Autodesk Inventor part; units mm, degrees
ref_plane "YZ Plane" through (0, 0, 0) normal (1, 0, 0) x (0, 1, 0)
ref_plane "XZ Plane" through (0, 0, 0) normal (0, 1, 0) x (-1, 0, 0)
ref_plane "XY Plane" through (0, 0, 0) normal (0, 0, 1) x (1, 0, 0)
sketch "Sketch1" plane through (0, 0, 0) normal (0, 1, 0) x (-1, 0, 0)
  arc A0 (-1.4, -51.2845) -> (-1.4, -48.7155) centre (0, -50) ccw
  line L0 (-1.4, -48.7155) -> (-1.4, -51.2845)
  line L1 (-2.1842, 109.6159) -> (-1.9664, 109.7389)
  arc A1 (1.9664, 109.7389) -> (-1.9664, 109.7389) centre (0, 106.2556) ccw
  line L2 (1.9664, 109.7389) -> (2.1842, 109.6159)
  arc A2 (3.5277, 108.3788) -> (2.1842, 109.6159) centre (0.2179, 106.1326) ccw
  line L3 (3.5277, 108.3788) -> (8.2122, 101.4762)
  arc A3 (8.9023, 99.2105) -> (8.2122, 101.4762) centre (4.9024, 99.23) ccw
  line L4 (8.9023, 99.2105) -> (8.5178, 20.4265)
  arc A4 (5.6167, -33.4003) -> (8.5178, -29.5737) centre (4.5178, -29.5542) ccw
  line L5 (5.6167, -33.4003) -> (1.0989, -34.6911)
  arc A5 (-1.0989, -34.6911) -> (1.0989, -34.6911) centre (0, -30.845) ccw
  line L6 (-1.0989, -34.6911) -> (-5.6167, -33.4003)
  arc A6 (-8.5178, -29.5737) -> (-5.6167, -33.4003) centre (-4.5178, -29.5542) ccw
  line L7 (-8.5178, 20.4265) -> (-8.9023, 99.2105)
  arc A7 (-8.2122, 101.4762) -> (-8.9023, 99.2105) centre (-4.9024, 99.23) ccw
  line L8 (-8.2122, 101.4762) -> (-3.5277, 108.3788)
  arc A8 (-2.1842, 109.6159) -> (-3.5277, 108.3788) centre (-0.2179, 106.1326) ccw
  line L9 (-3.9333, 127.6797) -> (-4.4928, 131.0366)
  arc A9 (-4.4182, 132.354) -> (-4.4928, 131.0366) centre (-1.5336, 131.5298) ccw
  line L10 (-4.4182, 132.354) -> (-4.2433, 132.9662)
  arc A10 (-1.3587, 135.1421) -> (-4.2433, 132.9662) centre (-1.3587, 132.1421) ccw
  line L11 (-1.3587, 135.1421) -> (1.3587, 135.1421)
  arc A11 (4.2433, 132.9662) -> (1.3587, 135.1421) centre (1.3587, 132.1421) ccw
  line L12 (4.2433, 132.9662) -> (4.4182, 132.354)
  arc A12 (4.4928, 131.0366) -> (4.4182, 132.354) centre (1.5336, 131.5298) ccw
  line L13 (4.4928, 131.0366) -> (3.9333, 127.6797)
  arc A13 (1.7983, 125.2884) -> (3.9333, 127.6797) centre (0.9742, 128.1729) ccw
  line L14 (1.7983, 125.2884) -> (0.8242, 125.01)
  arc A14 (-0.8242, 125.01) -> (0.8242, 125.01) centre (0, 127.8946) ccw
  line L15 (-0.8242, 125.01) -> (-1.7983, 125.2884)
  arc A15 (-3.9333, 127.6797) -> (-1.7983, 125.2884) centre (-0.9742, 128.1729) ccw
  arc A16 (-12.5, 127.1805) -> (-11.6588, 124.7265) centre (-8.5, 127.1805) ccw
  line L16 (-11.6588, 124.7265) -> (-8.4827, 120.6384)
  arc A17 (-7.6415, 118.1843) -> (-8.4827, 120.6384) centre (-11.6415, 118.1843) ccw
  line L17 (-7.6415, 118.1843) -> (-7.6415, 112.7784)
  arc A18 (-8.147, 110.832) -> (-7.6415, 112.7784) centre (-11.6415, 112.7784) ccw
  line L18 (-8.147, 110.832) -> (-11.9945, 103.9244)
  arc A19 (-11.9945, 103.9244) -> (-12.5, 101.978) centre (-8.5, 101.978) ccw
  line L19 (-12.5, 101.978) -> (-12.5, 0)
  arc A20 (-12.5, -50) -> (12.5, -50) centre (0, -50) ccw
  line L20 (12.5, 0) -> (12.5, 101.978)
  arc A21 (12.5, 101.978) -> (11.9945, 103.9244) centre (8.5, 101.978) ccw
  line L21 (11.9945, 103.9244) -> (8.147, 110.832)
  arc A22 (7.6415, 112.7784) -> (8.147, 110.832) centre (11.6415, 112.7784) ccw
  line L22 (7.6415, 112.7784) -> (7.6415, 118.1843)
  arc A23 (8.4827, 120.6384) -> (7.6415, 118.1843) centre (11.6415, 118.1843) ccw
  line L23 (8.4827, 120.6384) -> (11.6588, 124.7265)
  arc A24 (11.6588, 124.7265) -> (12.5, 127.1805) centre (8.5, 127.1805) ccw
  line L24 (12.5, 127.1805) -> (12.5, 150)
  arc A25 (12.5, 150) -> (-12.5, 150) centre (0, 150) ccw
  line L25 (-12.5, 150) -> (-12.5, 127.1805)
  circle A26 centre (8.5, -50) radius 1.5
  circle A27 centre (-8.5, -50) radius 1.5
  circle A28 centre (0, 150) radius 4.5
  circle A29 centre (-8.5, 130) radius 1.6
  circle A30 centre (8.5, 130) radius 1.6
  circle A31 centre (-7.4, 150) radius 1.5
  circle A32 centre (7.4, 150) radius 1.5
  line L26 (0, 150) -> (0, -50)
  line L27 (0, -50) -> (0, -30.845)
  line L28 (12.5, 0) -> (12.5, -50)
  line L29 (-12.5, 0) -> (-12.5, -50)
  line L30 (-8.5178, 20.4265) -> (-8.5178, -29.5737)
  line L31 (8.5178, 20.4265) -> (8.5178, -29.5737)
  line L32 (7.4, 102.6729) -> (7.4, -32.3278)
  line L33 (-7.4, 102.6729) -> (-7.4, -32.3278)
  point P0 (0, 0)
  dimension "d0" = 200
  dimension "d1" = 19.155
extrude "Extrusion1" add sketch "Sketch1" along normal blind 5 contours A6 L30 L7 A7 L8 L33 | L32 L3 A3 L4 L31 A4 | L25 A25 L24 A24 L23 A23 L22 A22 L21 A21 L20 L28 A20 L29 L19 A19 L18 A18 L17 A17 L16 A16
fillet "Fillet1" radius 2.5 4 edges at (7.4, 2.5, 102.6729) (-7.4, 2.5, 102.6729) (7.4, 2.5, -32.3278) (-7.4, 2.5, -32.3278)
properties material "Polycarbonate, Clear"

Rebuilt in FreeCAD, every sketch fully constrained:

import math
import FreeCAD as App
import Part
import Sketcher


def edges_at(feature, points):
    """Names of the edges that pass closest to the given points."""
    edges = feature.Shape.Edges
    near = lambda p: min(range(len(edges)), key=lambda i: edges[i].distToShape(Part.Vertex(*p))[0])
    return sorted({f"Edge{near(p) + 1}" for p in points})

doc = App.newDocument("Part")
body = doc.addObject("PartDesign::Body", "Body")

# Sketch on XZ plane
sketch1 = body.newObject("Sketcher::SketchObject", "Sketch")
sketch1.AttachmentSupport = (doc.getObject("XZ_Plane"), [""])
sketch1.MapMode = "FlatFace"
sketch1.addGeometry([
    Part.LineSegment(App.Vector(12.5, 150, 0), App.Vector(12.5, 127.1805, 0)),  # 0
    Part.ArcOfCircle(Part.Circle(App.Vector(8.5, 127.1805, 0), App.Vector(0, 0, 1), 4), math.radians(-37.842823), math.radians(0)),  # 1
    Part.LineSegment(App.Vector(11.6588, 124.7265, 0), App.Vector(8.4827, 120.6384, 0)),  # 2
    Part.ArcOfCircle(Part.Circle(App.Vector(11.6415, 118.1843, 0), App.Vector(0, 0, 1), 4), math.radians(142.156046), math.radians(180)),  # 3
    Part.LineSegment(App.Vector(7.6415, 118.1843, 0), App.Vector(7.6415, 112.7784, 0)),  # 4
    Part.ArcOfCircle(Part.Circle(App.Vector(11.6415, 112.7784, 0), App.Vector(0, 0, 1), 4), math.radians(180), math.radians(209.11735)),  # 5
    Part.LineSegment(App.Vector(8.147, 110.832, 0), App.Vector(11.9945, 103.9244, 0)),  # 6
    Part.ArcOfCircle(Part.Circle(App.Vector(8.5, 101.978, 0), App.Vector(0, 0, 1), 4), math.radians(0), math.radians(29.11735)),  # 7
    Part.LineSegment(App.Vector(12.5, 101.978, 0), App.Vector(12.5, -50, 0)),  # 8
    Part.ArcOfCircle(Part.Circle(App.Vector(0, -50, 0), App.Vector(0, 0, 1), 12.5), math.radians(180), math.radians(360)),  # 9
    Part.LineSegment(App.Vector(-12.5, -50, 0), App.Vector(-12.5, 101.978, 0)),  # 10
    Part.ArcOfCircle(Part.Circle(App.Vector(-8.5, 101.978, 0), App.Vector(0, 0, 1), 4), math.radians(150.88265), math.radians(180)),  # 11
    Part.LineSegment(App.Vector(-11.9945, 103.9244, 0), App.Vector(-8.147, 110.832, 0)),  # 12
    Part.ArcOfCircle(Part.Circle(App.Vector(-11.6415, 112.7784, 0), App.Vector(0, 0, 1), 4), math.radians(-29.11735), math.radians(0)),  # 13
    Part.LineSegment(App.Vector(-7.6415, 112.7784, 0), App.Vector(-7.6415, 118.1843, 0)),  # 14
    Part.ArcOfCircle(Part.Circle(App.Vector(-11.6415, 118.1843, 0), App.Vector(0, 0, 1), 4.000078), math.radians(0), math.radians(37.843954)),  # 15
    Part.LineSegment(App.Vector(-8.4827, 120.6384, 0), App.Vector(-11.6588, 124.7265, 0)),  # 16
    Part.ArcOfCircle(Part.Circle(App.Vector(-8.5, 127.1805, 0), App.Vector(0, 0, 1), 4.000017), math.radians(180), math.radians(217.842823)),  # 17
    Part.LineSegment(App.Vector(-12.5, 127.1805, 0), App.Vector(-12.5, 150, 0)),  # 18
    Part.ArcOfCircle(Part.Circle(App.Vector(0, 150, 0), App.Vector(0, 0, 1), 12.5), math.radians(0), math.radians(180)),  # 19
    Part.LineSegment(App.Vector(7.4, -32.3278, 0), App.Vector(7.4, 102.6729, 0)),  # 20
    Part.LineSegment(App.Vector(7.400035, 102.672924, 0), App.Vector(3.5277, 108.3788, 0)),  # 21
    Part.ArcOfCircle(Part.Circle(App.Vector(0.217233, 106.131683, 0), App.Vector(0, 0, 1), 4.001091), math.radians(34.168327), math.radians(60.553691)),  # 22
    Part.LineSegment(App.Vector(2.1842, 109.6159, 0), App.Vector(1.9664, 109.7389, 0)),  # 23
    Part.ArcOfCircle(Part.Circle(App.Vector(0, 106.2556, 0), App.Vector(0, 0, 1), 4.000013), math.radians(60.55431), math.radians(90)),  # 24
    Part.ArcOfCircle(Part.Circle(App.Vector(0, 106.2556, 0), App.Vector(0, 0, 1), 4.000013), math.radians(90), math.radians(119.44569)),  # 25
    Part.LineSegment(App.Vector(-1.9664, 109.7389, 0), App.Vector(-2.1842, 109.6159, 0)),  # 26
    Part.ArcOfCircle(Part.Circle(App.Vector(-0.218759, 106.13334, 0), App.Vector(0, 0, 1), 3.998898), math.radians(119.438943), math.radians(145.839039)),  # 27
    Part.LineSegment(App.Vector(-3.5277, 108.3788, 0), App.Vector(-7.400035, 102.672924, 0)),  # 28
    Part.LineSegment(App.Vector(-7.4, 102.6729, 0), App.Vector(-7.4, -32.3278, 0)),  # 29
    Part.ArcOfCircle(Part.Circle(App.Vector(-4.5178, -29.5542, 0), App.Vector(0, 0, 1), 4.000008), math.radians(-136.100031), math.radians(-105.945593)),  # 30
    Part.LineSegment(App.Vector(-5.6167, -33.4003, 0), App.Vector(-1.0989, -34.6911, 0)),  # 31
    Part.ArcOfCircle(Part.Circle(App.Vector(0, -30.845, 0), App.Vector(0, 0, 1), 4.000008), math.radians(-105.945593), math.radians(-90)),  # 32
    Part.ArcOfCircle(Part.Circle(App.Vector(0, -30.845, 0), App.Vector(0, 0, 1), 4.000008), math.radians(-90), math.radians(-74.054407)),  # 33
    Part.LineSegment(App.Vector(1.0989, -34.6911, 0), App.Vector(5.6167, -33.4003, 0)),  # 34
    Part.ArcOfCircle(Part.Circle(App.Vector(4.5178, -29.5542, 0), App.Vector(0, 0, 1), 4.000048), math.radians(-74.054407), math.radians(-43.899969)),  # 35
    Part.Circle(App.Vector(8.5, -50, 0), App.Vector(0, 0, 1), 1.5),  # 36
    Part.Circle(App.Vector(-8.5, 130, 0), App.Vector(0, 0, 1), 1.6),  # 37
    Part.Circle(App.Vector(-7.4, 150, 0), App.Vector(0, 0, 1), 1.5),  # 38
    Part.ArcOfCircle(Part.Circle(App.Vector(0, -50, 0), App.Vector(0, 0, 1), 1.899984), math.radians(90), math.radians(317.463618)),  # 39
    Part.LineSegment(App.Vector(1.4, -51.2845, 0), App.Vector(1.4, -48.7155, 0)),  # 40
    Part.ArcOfCircle(Part.Circle(App.Vector(0, -50, 0), App.Vector(0, 0, 1), 1.899984), math.radians(42.536382), math.radians(90)),  # 41
    Part.Circle(App.Vector(-8.5, -50, 0), App.Vector(0, 0, 1), 1.5),  # 42
    Part.Circle(App.Vector(8.5, 130, 0), App.Vector(0, 0, 1), 1.6),  # 43
    Part.Circle(App.Vector(7.4, 150, 0), App.Vector(0, 0, 1), 1.5),  # 44
    Part.ArcOfCircle(Part.Circle(App.Vector(0, 127.8946, 0), App.Vector(0, 0, 1), 3.000037), math.radians(-105.945921), math.radians(-90)),  # 45
    Part.ArcOfCircle(Part.Circle(App.Vector(0, 127.8946, 0), App.Vector(0, 0, 1), 3.000037), math.radians(-90), math.radians(-74.054079)),  # 46
    Part.LineSegment(App.Vector(0.8242, 125.01, 0), App.Vector(1.7983, 125.2884, 0)),  # 47
    Part.ArcOfCircle(Part.Circle(App.Vector(0.9742, 128.1729, 0), App.Vector(0, 0, 1), 2.99992), math.radians(-74.055391), math.radians(-9.462636)),  # 48
    Part.LineSegment(App.Vector(3.9333, 127.6797, 0), App.Vector(4.4928, 131.0366, 0)),  # 49
    Part.ArcOfCircle(Part.Circle(App.Vector(1.5336, 131.5298, 0), App.Vector(0, 0, 1), 3.000037), math.radians(-9.462322), math.radians(15.945921)),  # 50
    Part.LineSegment(App.Vector(4.4182, 132.354, 0), App.Vector(4.2433, 132.9662, 0)),  # 51
    Part.ArcOfCircle(Part.Circle(App.Vector(1.3587, 132.1421, 0), App.Vector(0, 0, 1), 3), math.radians(15.944084), math.radians(90)),  # 52
    Part.LineSegment(App.Vector(1.3587, 135.1421, 0), App.Vector(0, 135.1421, 0)),  # 53
    Part.LineSegment(App.Vector(0, 135.1421, 0), App.Vector(-1.3587, 135.1421, 0)),  # 54
    Part.ArcOfCircle(Part.Circle(App.Vector(-1.3587, 132.1421, 0), App.Vector(0, 0, 1), 3.00001), math.radians(90), math.radians(164.055916)),  # 55
    Part.LineSegment(App.Vector(-4.2433, 132.9662, 0), App.Vector(-4.4182, 132.354, 0)),  # 56
    Part.ArcOfCircle(Part.Circle(App.Vector(-1.5336, 131.5298, 0), App.Vector(0, 0, 1), 3.000018), math.radians(164.054079), math.radians(189.462322)),  # 57
    Part.LineSegment(App.Vector(-4.4928, 131.0366, 0), App.Vector(-3.9333, 127.6797, 0)),  # 58
    Part.ArcOfCircle(Part.Circle(App.Vector(-0.9742, 128.1729, 0), App.Vector(0, 0, 1), 2.999914), math.radians(-170.537364), math.radians(-105.944609)),  # 59
    Part.LineSegment(App.Vector(-1.7983, 125.2884, 0), App.Vector(-0.8242, 125.01, 0)),  # 60
    Part.Circle(App.Vector(0, 150, 0), App.Vector(0, 0, 1), 4.5),  # 61
], False)
sketch1.addConstraint([
    Sketcher.Constraint("Coincident", 0, 2, 1, 2),
    Sketcher.Constraint("Coincident", 1, 1, 2, 1),
    Sketcher.Constraint("Coincident", 2, 2, 3, 1),
    Sketcher.Constraint("Coincident", 3, 2, 4, 1),
    Sketcher.Constraint("Coincident", 4, 2, 5, 1),
    Sketcher.Constraint("Coincident", 5, 2, 6, 1),
    Sketcher.Constraint("Coincident", 6, 2, 7, 2),
    Sketcher.Constraint("Coincident", 7, 1, 8, 1),
    Sketcher.Constraint("Coincident", 8, 2, 9, 2),
    Sketcher.Constraint("Coincident", 9, 1, 10, 1),
    Sketcher.Constraint("Coincident", 10, 2, 11, 2),
    Sketcher.Constraint("Coincident", 11, 1, 12, 1),
    Sketcher.Constraint("Coincident", 12, 2, 13, 1),
    Sketcher.Constraint("Coincident", 13, 2, 14, 1),
    Sketcher.Constraint("Coincident", 14, 2, 15, 1),
    Sketcher.Constraint("Coincident", 15, 2, 16, 1),
    Sketcher.Constraint("Coincident", 16, 2, 17, 2),
    Sketcher.Constraint("Coincident", 17, 1, 18, 1),
    Sketcher.Constraint("Coincident", 18, 2, 19, 2),
    Sketcher.Constraint("Coincident", 19, 1, 0, 1),
    Sketcher.Constraint("Coincident", 20, 2, 21, 1),
    Sketcher.Constraint("Coincident", 21, 2, 22, 1),
    Sketcher.Constraint("Coincident", 22, 2, 23, 1),
    Sketcher.Constraint("Coincident", 23, 2, 24, 1),
    Sketcher.Constraint("Coincident", 24, 2, 25, 1),
    Sketcher.Constraint("Coincident", 25, 2, 26, 1),
    Sketcher.Constraint("Coincident", 26, 2, 27, 1),
    Sketcher.Constraint("Coincident", 27, 2, 28, 1),
    Sketcher.Constraint("Coincident", 28, 2, 29, 1),
    Sketcher.Constraint("Coincident", 29, 2, 30, 1),
    Sketcher.Constraint("Coincident", 30, 2, 31, 1),
    Sketcher.Constraint("Coincident", 31, 2, 32, 1),
    Sketcher.Constraint("Coincident", 32, 2, 33, 1),
    Sketcher.Constraint("Coincident", 33, 2, 34, 1),
    Sketcher.Constraint("Coincident", 34, 2, 35, 1),
    Sketcher.Constraint("Coincident", 35, 2, 20, 1),
    Sketcher.Constraint("Coincident", 39, 2, 40, 1),
    Sketcher.Constraint("Coincident", 40, 2, 41, 1),
    Sketcher.Constraint("Coincident", 41, 2, 39, 1),
    Sketcher.Constraint("Coincident", 45, 2, 46, 1),
    Sketcher.Constraint("Coincident", 46, 2, 47, 1),
    Sketcher.Constraint("Coincident", 47, 2, 48, 1),
    Sketcher.Constraint("Coincident", 48, 2, 49, 1),
    Sketcher.Constraint("Coincident", 49, 2, 50, 1),
    Sketcher.Constraint("Coincident", 50, 2, 51, 1),
    Sketcher.Constraint("Coincident", 51, 2, 52, 1),
    Sketcher.Constraint("Coincident", 52, 2, 53, 1),
    Sketcher.Constraint("Coincident", 53, 2, 54, 1),
    Sketcher.Constraint("Coincident", 54, 2, 55, 1),
    Sketcher.Constraint("Coincident", 55, 2, 56, 1),
    Sketcher.Constraint("Coincident", 56, 2, 57, 1),
    Sketcher.Constraint("Coincident", 57, 2, 58, 1),
    Sketcher.Constraint("Coincident", 58, 2, 59, 1),
    Sketcher.Constraint("Coincident", 59, 2, 60, 1),
    Sketcher.Constraint("Coincident", 60, 2, 45, 1),
    Sketcher.Constraint("Vertical", 0),
    Sketcher.Constraint("Vertical", 4),
    Sketcher.Constraint("Vertical", 8),
    Sketcher.Constraint("Vertical", 10),
    Sketcher.Constraint("Vertical", 14),
    Sketcher.Constraint("Vertical", 18),
    Sketcher.Constraint("Vertical", 20),
    Sketcher.Constraint("Vertical", 29),
    Sketcher.Constraint("Vertical", 40),
    Sketcher.Constraint("Horizontal", 53),
    Sketcher.Constraint("Horizontal", 54),
    Sketcher.Constraint("Coincident", 25, 3, 24, 3),
    Sketcher.Constraint("Coincident", 33, 3, 32, 3),
    Sketcher.Constraint("Coincident", 39, 3, 9, 3),
    Sketcher.Constraint("Coincident", 41, 3, 9, 3),
    Sketcher.Constraint("Coincident", 46, 3, 45, 3),
    Sketcher.Constraint("Coincident", 61, 3, 19, 3),
    Sketcher.Constraint("PointOnObject", 9, 3, -2),
    Sketcher.Constraint("PointOnObject", 19, 3, -2),
    Sketcher.Constraint("PointOnObject", 24, 3, -2),
    Sketcher.Constraint("PointOnObject", 32, 3, -2),
    Sketcher.Constraint("PointOnObject", 45, 3, -2),
    Sketcher.Constraint("PointOnObject", 24, 2, -2),
    Sketcher.Constraint("PointOnObject", 32, 2, -2),
    Sketcher.Constraint("PointOnObject", 41, 2, -2),
    Sketcher.Constraint("PointOnObject", 45, 2, -2),
    Sketcher.Constraint("PointOnObject", 53, 2, -2),
    Sketcher.Constraint("Diameter", 36, 3.0),
    Sketcher.Constraint("Diameter", 38, 3.0),
    Sketcher.Constraint("Diameter", 42, 3.0),
    Sketcher.Constraint("Diameter", 44, 3.0),
    Sketcher.Constraint("Diameter", 61, 9.0),
    Sketcher.Constraint("Radius", 1, 4.0),
    Sketcher.Constraint("Radius", 3, 4.0),
    Sketcher.Constraint("Radius", 5, 4.0),
    Sketcher.Constraint("Radius", 7, 4.0),
    Sketcher.Constraint("Radius", 11, 4.0),
    Sketcher.Constraint("Radius", 13, 4.0),
    Sketcher.Constraint("Radius", 15, 4.0),
    Sketcher.Constraint("Radius", 17, 4.0),
    Sketcher.Constraint("Radius", 24, 4.0),
    Sketcher.Constraint("Radius", 30, 4.0),
    Sketcher.Constraint("Radius", 32, 4.0),
    Sketcher.Constraint("Radius", 35, 4.0),
    Sketcher.Constraint("Radius", 45, 3.0),
    Sketcher.Constraint("Radius", 48, 3.0),
    Sketcher.Constraint("Radius", 50, 3.0),
    Sketcher.Constraint("Radius", 52, 3.0),
    Sketcher.Constraint("Radius", 55, 3.0),
    Sketcher.Constraint("Radius", 57, 3.0),
    Sketcher.Constraint("Radius", 59, 3.0),
    Sketcher.Constraint("Diameter", 37, 3.2),
    Sketcher.Constraint("Diameter", 43, 3.2),
    Sketcher.Constraint("Radius", 9, 12.5),
    Sketcher.Constraint("Radius", 19, 12.5),
    Sketcher.Constraint("Radius", 39, 1.9),
    Sketcher.Constraint("DistanceY", 9, 3, -1, 1, 50.0),
    Sketcher.Constraint("DistanceY", -1, 1, 19, 3, 150.0),
    Sketcher.Constraint("DistanceY", 36, 3, -1, 1, 50.0),
    Sketcher.Constraint("DistanceY", -1, 1, 37, 3, 130.0),
    Sketcher.Constraint("DistanceY", -1, 1, 38, 3, 150.0),
    Sketcher.Constraint("DistanceY", 42, 3, -1, 1, 50.0),
    Sketcher.Constraint("DistanceY", -1, 1, 43, 3, 130.0),
    Sketcher.Constraint("DistanceY", -1, 1, 44, 3, 150.0),
    Sketcher.Constraint("DistanceY", 8, 2, -1, 1, 50.0),
    Sketcher.Constraint("DistanceY", 9, 1, -1, 1, 50.0),
    Sketcher.Constraint("DistanceY", -1, 1, 18, 2, 150.0),
    Sketcher.Constraint("DistanceY", -1, 1, 19, 1, 150.0),
    Sketcher.Constraint("Radius", 22, 4.001),
    Sketcher.Constraint("Radius", 27, 3.999),
    Sketcher.Constraint("DistanceX", -1, 1, 36, 3, 8.5),
    Sketcher.Constraint("DistanceX", 37, 3, -1, 1, 8.5),
    Sketcher.Constraint("DistanceX", 38, 3, -1, 1, 7.4),
    Sketcher.Constraint("DistanceX", 42, 3, -1, 1, 8.5),
    Sketcher.Constraint("DistanceX", -1, 1, 43, 3, 8.5),
    Sketcher.Constraint("DistanceX", -1, 1, 44, 3, 7.4),
    Sketcher.Constraint("DistanceX", -1, 1, 20, 2, 7.4),
    Sketcher.Constraint("DistanceX", 28, 2, -1, 1, 7.4),
    Sketcher.Constraint("DistanceX", -1, 1, 39, 2, 1.4),
    Sketcher.Constraint("DistanceY", 4, 2, 4, 1, 5.406),
    Sketcher.Constraint("DistanceY", 8, 2, 8, 1, 151.978),
    Sketcher.Constraint("DistanceY", 10, 1, 10, 2, 151.978),
    Sketcher.Constraint("DistanceY", 14, 1, 14, 2, 5.406),
    Sketcher.Constraint("DistanceY", -1, 1, 46, 2, 125.01),
    Sketcher.Constraint("DistanceY", -1, 1, 60, 2, 125.01),
    Sketcher.Constraint("Distance", 2, 5.177),
    Sketcher.Constraint("Distance", 16, 5.177),
    Sketcher.Constraint("Distance", 47, 1.013),
    Sketcher.Constraint("Distance", 60, 1.013),
    Sketcher.Constraint("DistanceX", 53, 2, 53, 1, 1.3587),
    Sketcher.Constraint("DistanceX", 54, 2, 54, 1, 1.3587),
    Sketcher.Constraint("DistanceY", 0, 2, 0, 1, 22.8195),
    Sketcher.Constraint("DistanceY", 18, 1, 18, 2, 22.8195),
    Sketcher.Constraint("DistanceY", 20, 1, 20, 2, 135.0007),
    Sketcher.Constraint("DistanceY", 29, 2, 29, 1, 135.0007),
    Sketcher.Constraint("DistanceY", -1, 1, 7, 3, 101.978),
    Sketcher.Constraint("DistanceY", -1, 1, 11, 3, 101.978),
    Sketcher.Constraint("DistanceY", 32, 3, -1, 1, 30.845),
    Sketcher.Constraint("DistanceY", -1, 1, 48, 3, 128.173),
    Sketcher.Constraint("DistanceY", -1, 1, 52, 3, 132.142),
    Sketcher.Constraint("DistanceY", -1, 1, 59, 3, 128.173),
    Sketcher.Constraint("DistanceX", -1, 1, 5, 2, 8.147),
    Sketcher.Constraint("DistanceY", -1, 1, 5, 2, 110.832),
    Sketcher.Constraint("DistanceX", 12, 2, -1, 1, 8.147),
    Sketcher.Constraint("DistanceY", -1, 1, 12, 2, 110.832),
    Sketcher.Constraint("DistanceY", -1, 1, 20, 2, 102.673),
    Sketcher.Constraint("DistanceY", -1, 1, 22, 2, 109.616),
    Sketcher.Constraint("DistanceY", -1, 1, 23, 2, 109.739),
    Sketcher.Constraint("DistanceY", -1, 1, 25, 2, 109.739),
    Sketcher.Constraint("DistanceY", -1, 1, 26, 2, 109.616),
    Sketcher.Constraint("DistanceY", -1, 1, 28, 2, 102.673),
    Sketcher.Constraint("DistanceX", 31, 2, -1, 1, 1.099),
    Sketcher.Constraint("DistanceX", -1, 1, 33, 2, 1.099),
    Sketcher.Constraint("DistanceY", -1, 1, 50, 2, 132.354),
    Sketcher.Constraint("DistanceY", -1, 1, 56, 2, 132.354),
    Sketcher.Constraint("Distance", 6, 7.9068),
    Sketcher.Constraint("Distance", 12, 7.9068),
    Sketcher.Constraint("Distance", 21, 6.8958),
    Sketcher.Constraint("Distance", 23, 0.2501),
    Sketcher.Constraint("Distance", 26, 0.2501),
    Sketcher.Constraint("Distance", 28, 6.8958),
    Sketcher.Constraint("Distance", 31, 4.6986),
    Sketcher.Constraint("Distance", 34, 4.6986),
    Sketcher.Constraint("Distance", 49, 3.4032),
    Sketcher.Constraint("Distance", 51, 0.6367),
    Sketcher.Constraint("Distance", 56, 0.6367),
    Sketcher.Constraint("Distance", 58, 3.4032),
    Sketcher.Constraint("DistanceY", -1, 1, 1, 3, 127.1805),
    Sketcher.Constraint("DistanceX", -1, 1, 3, 3, 11.6415),
    Sketcher.Constraint("DistanceY", -1, 1, 3, 3, 118.1843),
    Sketcher.Constraint("DistanceX", 13, 3, -1, 1, 11.6415),
    Sketcher.Constraint("DistanceY", -1, 1, 15, 3, 118.1843),
    Sketcher.Constraint("DistanceY", -1, 1, 17, 3, 127.1805),
    Sketcher.Constraint("DistanceX", -1, 1, 22, 3, 0.2172),
    Sketcher.Constraint("DistanceY", -1, 1, 22, 3, 106.1317),
    Sketcher.Constraint("DistanceX", 27, 3, -1, 1, 0.2188),
    Sketcher.Constraint("DistanceX", 30, 3, -1, 1, 4.5178),
    Sketcher.Constraint("DistanceX", -1, 1, 35, 3, 4.5178),
    Sketcher.Constraint("DistanceY", -1, 1, 45, 3, 127.8946),
    Sketcher.Constraint("DistanceX", -1, 1, 48, 3, 0.9742),
    Sketcher.Constraint("DistanceX", -1, 1, 50, 3, 1.5336),
    Sketcher.Constraint("DistanceY", -1, 1, 50, 3, 131.5298),
    Sketcher.Constraint("DistanceX", -1, 1, 52, 3, 1.3587),
    Sketcher.Constraint("DistanceX", 55, 3, -1, 1, 1.3587),
    Sketcher.Constraint("DistanceX", 57, 3, -1, 1, 1.5336),
    Sketcher.Constraint("DistanceY", -1, 1, 57, 3, 131.5298),
    Sketcher.Constraint("DistanceX", 59, 3, -1, 1, 0.9742),
    Sketcher.Constraint("DistanceX", -1, 1, 1, 1, 11.6588),
    Sketcher.Constraint("DistanceY", -1, 1, 3, 2, 118.1843),
    Sketcher.Constraint("DistanceY", -1, 1, 13, 2, 112.7784),
    Sketcher.Constraint("DistanceX", 15, 2, -1, 1, 8.4827),
    Sketcher.Constraint("DistanceX", -1, 1, 48, 2, 3.9333),
    Sketcher.Constraint("DistanceX", 57, 2, -1, 1, 4.4928),
])
pad1 = body.newObject("PartDesign::Pad", "Pad")
pad1.Profile = sketch1
pad1.Length = 5
pad1.Reversed = True
doc.recompute()

fillet = body.newObject("PartDesign::Fillet", "Fillet")
fillet.Base = (pad1, edges_at(pad1, [
    (7.4, 2.5, 102.673),
    (-7.4, 2.5, 102.673),
    (7.4, 2.5, -32.328),
    (-7.4, 2.5, -32.328),
]))
fillet.Radius = 2.5

doc.recompute()
